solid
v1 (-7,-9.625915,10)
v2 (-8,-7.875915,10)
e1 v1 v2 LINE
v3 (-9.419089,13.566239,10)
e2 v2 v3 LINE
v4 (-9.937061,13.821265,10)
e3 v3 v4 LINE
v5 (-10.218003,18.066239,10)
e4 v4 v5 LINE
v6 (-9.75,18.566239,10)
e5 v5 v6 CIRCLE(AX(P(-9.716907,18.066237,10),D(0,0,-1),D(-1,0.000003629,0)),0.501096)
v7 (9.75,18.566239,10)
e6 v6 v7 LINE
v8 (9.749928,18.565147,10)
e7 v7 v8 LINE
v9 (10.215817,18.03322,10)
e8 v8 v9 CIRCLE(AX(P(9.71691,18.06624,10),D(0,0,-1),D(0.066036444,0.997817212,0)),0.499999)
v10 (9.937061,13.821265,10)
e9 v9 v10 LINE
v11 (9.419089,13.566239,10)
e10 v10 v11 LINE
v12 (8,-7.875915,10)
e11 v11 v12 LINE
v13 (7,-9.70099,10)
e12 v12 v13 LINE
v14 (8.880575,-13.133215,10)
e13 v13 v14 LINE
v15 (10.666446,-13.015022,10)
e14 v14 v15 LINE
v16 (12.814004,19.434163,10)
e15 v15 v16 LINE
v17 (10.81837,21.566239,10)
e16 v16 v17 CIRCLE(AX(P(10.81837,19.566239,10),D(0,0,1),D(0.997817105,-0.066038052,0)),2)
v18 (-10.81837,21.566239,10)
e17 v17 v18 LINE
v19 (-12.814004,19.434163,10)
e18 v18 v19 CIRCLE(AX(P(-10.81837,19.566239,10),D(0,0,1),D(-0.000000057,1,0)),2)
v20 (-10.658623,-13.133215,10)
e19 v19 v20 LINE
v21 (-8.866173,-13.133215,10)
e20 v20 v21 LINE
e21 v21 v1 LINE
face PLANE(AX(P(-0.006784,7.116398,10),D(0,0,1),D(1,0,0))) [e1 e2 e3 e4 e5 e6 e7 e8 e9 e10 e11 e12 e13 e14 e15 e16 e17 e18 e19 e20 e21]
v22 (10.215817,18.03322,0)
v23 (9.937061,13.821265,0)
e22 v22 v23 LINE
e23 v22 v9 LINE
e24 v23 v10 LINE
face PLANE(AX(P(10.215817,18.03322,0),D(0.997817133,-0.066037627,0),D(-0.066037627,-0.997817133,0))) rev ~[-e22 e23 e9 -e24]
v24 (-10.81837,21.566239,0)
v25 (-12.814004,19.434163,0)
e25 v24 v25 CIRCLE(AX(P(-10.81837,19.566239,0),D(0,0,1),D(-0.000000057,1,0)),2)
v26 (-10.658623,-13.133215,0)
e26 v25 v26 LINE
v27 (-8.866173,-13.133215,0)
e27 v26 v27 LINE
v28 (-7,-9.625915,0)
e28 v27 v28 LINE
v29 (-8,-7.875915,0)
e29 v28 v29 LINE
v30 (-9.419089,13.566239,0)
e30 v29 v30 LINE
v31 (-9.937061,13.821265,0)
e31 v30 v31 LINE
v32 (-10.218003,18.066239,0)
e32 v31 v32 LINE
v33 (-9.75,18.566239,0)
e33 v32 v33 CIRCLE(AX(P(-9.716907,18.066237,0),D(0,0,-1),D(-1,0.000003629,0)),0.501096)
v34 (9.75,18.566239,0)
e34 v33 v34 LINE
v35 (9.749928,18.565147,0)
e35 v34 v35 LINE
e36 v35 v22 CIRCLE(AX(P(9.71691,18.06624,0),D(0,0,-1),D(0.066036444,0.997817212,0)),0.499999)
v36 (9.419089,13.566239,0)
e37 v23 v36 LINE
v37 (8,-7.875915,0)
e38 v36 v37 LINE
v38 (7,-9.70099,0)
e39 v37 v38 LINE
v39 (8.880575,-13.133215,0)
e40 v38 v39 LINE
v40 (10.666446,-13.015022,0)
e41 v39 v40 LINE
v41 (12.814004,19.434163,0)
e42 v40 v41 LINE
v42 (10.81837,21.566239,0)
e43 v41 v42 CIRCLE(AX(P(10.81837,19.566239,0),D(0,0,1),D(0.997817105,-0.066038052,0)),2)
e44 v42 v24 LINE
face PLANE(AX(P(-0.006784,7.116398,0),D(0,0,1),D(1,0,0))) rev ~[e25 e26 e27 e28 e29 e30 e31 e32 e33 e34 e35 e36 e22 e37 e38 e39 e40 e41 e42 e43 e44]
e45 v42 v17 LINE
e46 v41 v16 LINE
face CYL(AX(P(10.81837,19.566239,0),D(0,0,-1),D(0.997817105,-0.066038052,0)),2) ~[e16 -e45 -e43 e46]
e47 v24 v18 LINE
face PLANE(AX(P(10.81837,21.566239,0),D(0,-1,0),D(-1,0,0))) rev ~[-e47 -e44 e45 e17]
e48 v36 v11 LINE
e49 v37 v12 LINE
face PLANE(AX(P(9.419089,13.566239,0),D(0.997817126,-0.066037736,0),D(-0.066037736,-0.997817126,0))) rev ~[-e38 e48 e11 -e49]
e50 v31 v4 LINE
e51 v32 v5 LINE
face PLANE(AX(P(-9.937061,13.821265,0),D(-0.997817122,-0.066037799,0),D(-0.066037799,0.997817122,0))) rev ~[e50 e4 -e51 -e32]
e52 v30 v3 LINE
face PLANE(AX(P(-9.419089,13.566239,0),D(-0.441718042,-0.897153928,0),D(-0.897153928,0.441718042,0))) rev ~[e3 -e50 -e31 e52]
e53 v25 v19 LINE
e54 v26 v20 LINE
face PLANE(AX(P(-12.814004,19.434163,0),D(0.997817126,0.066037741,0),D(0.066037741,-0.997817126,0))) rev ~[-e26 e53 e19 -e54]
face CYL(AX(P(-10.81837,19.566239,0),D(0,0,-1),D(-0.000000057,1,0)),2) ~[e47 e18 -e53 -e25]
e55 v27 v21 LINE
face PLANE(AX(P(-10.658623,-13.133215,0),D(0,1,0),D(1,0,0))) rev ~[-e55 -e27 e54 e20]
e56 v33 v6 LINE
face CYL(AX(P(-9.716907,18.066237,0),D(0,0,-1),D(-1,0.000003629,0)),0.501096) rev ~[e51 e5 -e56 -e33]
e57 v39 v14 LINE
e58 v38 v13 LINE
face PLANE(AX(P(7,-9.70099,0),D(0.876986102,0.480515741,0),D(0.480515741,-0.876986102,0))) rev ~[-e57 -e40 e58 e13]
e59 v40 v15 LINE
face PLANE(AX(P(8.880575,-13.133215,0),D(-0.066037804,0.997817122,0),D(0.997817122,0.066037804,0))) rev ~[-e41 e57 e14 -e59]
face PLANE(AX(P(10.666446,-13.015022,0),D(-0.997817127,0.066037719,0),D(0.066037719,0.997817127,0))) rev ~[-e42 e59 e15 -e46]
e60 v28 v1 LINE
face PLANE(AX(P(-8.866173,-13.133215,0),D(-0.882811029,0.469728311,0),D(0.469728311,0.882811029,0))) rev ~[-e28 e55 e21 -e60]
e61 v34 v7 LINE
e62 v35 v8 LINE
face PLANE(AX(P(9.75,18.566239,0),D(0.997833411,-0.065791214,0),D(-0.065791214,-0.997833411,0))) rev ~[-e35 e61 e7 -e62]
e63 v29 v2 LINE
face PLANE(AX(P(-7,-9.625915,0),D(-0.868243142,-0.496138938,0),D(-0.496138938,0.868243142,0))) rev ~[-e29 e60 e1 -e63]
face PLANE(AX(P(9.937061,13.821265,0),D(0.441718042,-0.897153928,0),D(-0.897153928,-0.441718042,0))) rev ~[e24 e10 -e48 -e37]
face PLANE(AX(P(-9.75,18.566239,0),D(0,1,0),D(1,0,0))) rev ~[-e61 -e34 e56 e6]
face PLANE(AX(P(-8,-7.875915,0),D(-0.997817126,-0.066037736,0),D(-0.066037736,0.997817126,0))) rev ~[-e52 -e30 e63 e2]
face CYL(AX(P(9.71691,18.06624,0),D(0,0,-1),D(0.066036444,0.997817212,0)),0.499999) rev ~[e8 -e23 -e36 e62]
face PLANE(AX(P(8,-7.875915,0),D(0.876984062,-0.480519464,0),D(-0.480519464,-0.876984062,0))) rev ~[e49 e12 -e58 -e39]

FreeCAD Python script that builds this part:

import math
import FreeCAD as App
import Part
import Sketcher

doc = App.newDocument("Part")
params = doc.addObject("Spreadsheet::Sheet", "Params")
for row, (alias, value) in enumerate([
    ("sketch1_radius", "2 mm"),
    ("sketch1_radius2", "2 mm"),
    ("sketch1_radius3", "0.499999 mm"),
    ("sketch1_width", "19.5 mm"),
    ("pad1_length", "10 mm"),
], start=1):
    params.set(f"A{row}", alias)
    params.set(f"B{row}", "=" + value)
    params.setAlias(f"B{row}", alias)

body = doc.addObject("PartDesign::Body", "Body")

# Sketch on XY plane
sketch1 = body.newObject("Sketcher::SketchObject", "Sketch")
sketch1.AttachmentSupport = (doc.getObject("XY_Plane"), [""])
sketch1.MapMode = "FlatFace"
sketch1.addGeometry([
    Part.ArcOfCircle(Part.Circle(App.Vector(-9.716907, 18.066237, 0), App.Vector(0, 0, 1), 0.501096), math.radians(93.786613), math.radians(179.999792)),  # 0
    Part.LineSegment(App.Vector(-9.75, 18.566239, 0), App.Vector(9.75, 18.566239, 0)),  # 1
    Part.LineSegment(App.Vector(9.75, 18.566239, 0), App.Vector(9.749928, 18.565147, 0)),  # 2
    Part.ArcOfCircle(Part.Circle(App.Vector(9.71691, 18.06624, 0), App.Vector(0, 0, 1), 0.499999), math.radians(-3.786552), math.radians(86.213635)),  # 3
    Part.LineSegment(App.Vector(10.215817, 18.03322, 0), App.Vector(9.937061, 13.821265, 0)),  # 4
    Part.LineSegment(App.Vector(9.937061, 13.821265, 0), App.Vector(9.419089, 13.566239, 0)),  # 5
    Part.LineSegment(App.Vector(9.419089, 13.566239, 0), App.Vector(8, -7.875915, 0)),  # 6
    Part.LineSegment(App.Vector(8, -7.875915, 0), App.Vector(7, -9.70099, 0)),  # 7
    Part.LineSegment(App.Vector(7, -9.70099, 0), App.Vector(8.880575, -13.133215, 0)),  # 8
    Part.LineSegment(App.Vector(8.880575, -13.133215, 0), App.Vector(10.666446, -13.015022, 0)),  # 9
    Part.LineSegment(App.Vector(10.666446, -13.015022, 0), App.Vector(12.814004, 19.434163, 0)),  # 10
    Part.ArcOfCircle(Part.Circle(App.Vector(10.81837, 19.566239, 0), App.Vector(0, 0, 1), 2), math.radians(-3.786457), math.radians(89.999997)),  # 11
    Part.LineSegment(App.Vector(10.81837, 21.566239, 0), App.Vector(-10.81837, 21.566239, 0)),  # 12
    Part.ArcOfCircle(Part.Circle(App.Vector(-10.81837, 19.566239, 0), App.Vector(0, 0, 1), 2), math.radians(90.000003), math.radians(183.786457)),  # 13
    Part.LineSegment(App.Vector(-12.814004, 19.434163, 0), App.Vector(-10.658623, -13.133215, 0)),  # 14
    Part.LineSegment(App.Vector(-10.658623, -13.133215, 0), App.Vector(-8.866173, -13.133215, 0)),  # 15
    Part.LineSegment(App.Vector(-8.866173, -13.133215, 0), App.Vector(-7, -9.625915, 0)),  # 16
    Part.LineSegment(App.Vector(-7, -9.625915, 0), App.Vector(-8, -7.875915, 0)),  # 17
    Part.LineSegment(App.Vector(-8, -7.875915, 0), App.Vector(-9.419089, 13.566239, 0)),  # 18
    Part.LineSegment(App.Vector(-9.419089, 13.566239, 0), App.Vector(-9.937061, 13.821265, 0)),  # 19
    Part.LineSegment(App.Vector(-9.937061, 13.821265, 0), App.Vector(-10.218003, 18.066239, 0)),  # 20
], False)
sketch1.addConstraint([
    Sketcher.Constraint("Coincident", 0, 1, 1, 1),
    Sketcher.Constraint("Coincident", 1, 2, 2, 1),
    Sketcher.Constraint("Coincident", 2, 2, 3, 2),
    Sketcher.Constraint("Coincident", 3, 1, 4, 1),
    Sketcher.Constraint("Coincident", 4, 2, 5, 1),
    Sketcher.Constraint("Coincident", 5, 2, 6, 1),
    Sketcher.Constraint("Coincident", 6, 2, 7, 1),
    Sketcher.Constraint("Coincident", 7, 2, 8, 1),
    Sketcher.Constraint("Coincident", 8, 2, 9, 1),
    Sketcher.Constraint("Coincident", 9, 2, 10, 1),
    Sketcher.Constraint("Coincident", 10, 2, 11, 1),
    Sketcher.Constraint("Coincident", 11, 2, 12, 1),
    Sketcher.Constraint("Coincident", 12, 2, 13, 1),
    Sketcher.Constraint("Coincident", 13, 2, 14, 1),
    Sketcher.Constraint("Coincident", 14, 2, 15, 1),
    Sketcher.Constraint("Coincident", 15, 2, 16, 1),
    Sketcher.Constraint("Coincident", 16, 2, 17, 1),
    Sketcher.Constraint("Coincident", 17, 2, 18, 1),
    Sketcher.Constraint("Coincident", 18, 2, 19, 1),
    Sketcher.Constraint("Coincident", 19, 2, 20, 1),
    Sketcher.Constraint("Coincident", 20, 2, 0, 2),
    Sketcher.Constraint("Horizontal", 1),
    Sketcher.Constraint("Horizontal", 12),
    Sketcher.Constraint("Horizontal", 15),
    Sketcher.Constraint("Radius", 11, 2.0),
    Sketcher.Constraint("Radius", 13, 2.0),
    Sketcher.Constraint("Radius", 3, 0.499999),
    Sketcher.Constraint("DistanceX", 1, 1, 1, 2, 19.5),
    Sketcher.Constraint("DistanceX", -1, 1, 6, 2, 8.0),
    Sketcher.Constraint("DistanceX", -1, 1, 7, 2, 7.0),
    Sketcher.Constraint("DistanceX", 16, 2, -1, 1, 7.0),
    Sketcher.Constraint("DistanceX", 17, 2, -1, 1, 8.0),
    Sketcher.Constraint("DistanceY", 0, 1, 13, 3, 1.0),
    Sketcher.Constraint("DistanceY", 5, 2, 1, 2, 5.0),
    Sketcher.Constraint("DistanceY", 18, 2, 0, 1, 5.0),
    Sketcher.Constraint("DistanceY", 3, 3, 11, 3, 1.499999),
    Sketcher.Constraint("DistanceY", 0, 3, 11, 3, 1.500002),
    Sketcher.Constraint("DistanceY", 20, 2, 0, 1, 0.5),
    Sketcher.Constraint("DistanceX", 0, 1, -1, 1, 9.75),
    Sketcher.Constraint("DistanceY", 16, 2, 6, 2, 1.75),
    Sketcher.Constraint("DistanceY", 16, 2, 17, 2, 1.75),
    Sketcher.Constraint("Radius", 0, 0.501096),
    Sketcher.Constraint("DistanceX", 13, 2, 20, 2, 2.596001),
    Sketcher.Constraint("DistanceX", 12, 2, 12, 1, 21.63674),
    Sketcher.Constraint("DistanceX", 15, 1, 15, 2, 1.79245),
    Sketcher.Constraint("DistanceY", 8, 2, 6, 2, 5.2573),
    Sketcher.Constraint("DistanceY", 14, 2, 6, 2, 5.2573),
    Sketcher.Constraint("DistanceY", 19, 2, 13, 2, 5.612898),
    Sketcher.Constraint("Distance", 4, 4.221169),
    Sketcher.Constraint("Distance", 5, 0.57735),
    Sketcher.Constraint("Distance", 6, 21.489062),
    Sketcher.Constraint("Distance", 7, 2.081081),
    Sketcher.Constraint("Distance", 8, 3.91366),
    Sketcher.Constraint("Distance", 18, 21.489062),
    Sketcher.Constraint("Distance", 19, 0.57735),
    Sketcher.Constraint("Distance", 20, 4.254261),
    Sketcher.Constraint("DistanceX", -1, 1, 3, 3, 9.71691),
    Sketcher.Constraint("DistanceY", -1, 1, 3, 3, 18.06624),
    Sketcher.Constraint("DistanceX", -1, 1, 11, 3, 10.81837),
    Sketcher.Constraint("DistanceY", -1, 1, 3, 1, 18.03322),
    Sketcher.Constraint("DistanceX", -1, 1, 4, 2, 9.937061),
    Sketcher.Constraint("DistanceX", -1, 1, 11, 2, 10.81837),
    Sketcher.Constraint("DistanceY", 2, 2, 1, 2, 0.001092),
    Sketcher.Constraint("DistanceX", 8, 2, 9, 2, 1.785871),
    Sketcher.Constraint("DistanceY", 9, 2, 5, 2, 26.581261),
    Sketcher.Constraint("DistanceX", 14, 2, 9, 2, 21.325069),
    Sketcher.Constraint("Distance", 10, 32.520172),
])
sketch1.setExpression("Constraints[24]", "Params.sketch1_radius")
sketch1.setExpression("Constraints[25]", "Params.sketch1_radius2")
sketch1.setExpression("Constraints[26]", "Params.sketch1_radius3")
sketch1.setExpression("Constraints[27]", "Params.sketch1_width")
pad1 = body.newObject("PartDesign::Pad", "Pad")
pad1.Profile = sketch1
pad1.setExpression("Length", "Params.pad1_length")

doc.recompute()
